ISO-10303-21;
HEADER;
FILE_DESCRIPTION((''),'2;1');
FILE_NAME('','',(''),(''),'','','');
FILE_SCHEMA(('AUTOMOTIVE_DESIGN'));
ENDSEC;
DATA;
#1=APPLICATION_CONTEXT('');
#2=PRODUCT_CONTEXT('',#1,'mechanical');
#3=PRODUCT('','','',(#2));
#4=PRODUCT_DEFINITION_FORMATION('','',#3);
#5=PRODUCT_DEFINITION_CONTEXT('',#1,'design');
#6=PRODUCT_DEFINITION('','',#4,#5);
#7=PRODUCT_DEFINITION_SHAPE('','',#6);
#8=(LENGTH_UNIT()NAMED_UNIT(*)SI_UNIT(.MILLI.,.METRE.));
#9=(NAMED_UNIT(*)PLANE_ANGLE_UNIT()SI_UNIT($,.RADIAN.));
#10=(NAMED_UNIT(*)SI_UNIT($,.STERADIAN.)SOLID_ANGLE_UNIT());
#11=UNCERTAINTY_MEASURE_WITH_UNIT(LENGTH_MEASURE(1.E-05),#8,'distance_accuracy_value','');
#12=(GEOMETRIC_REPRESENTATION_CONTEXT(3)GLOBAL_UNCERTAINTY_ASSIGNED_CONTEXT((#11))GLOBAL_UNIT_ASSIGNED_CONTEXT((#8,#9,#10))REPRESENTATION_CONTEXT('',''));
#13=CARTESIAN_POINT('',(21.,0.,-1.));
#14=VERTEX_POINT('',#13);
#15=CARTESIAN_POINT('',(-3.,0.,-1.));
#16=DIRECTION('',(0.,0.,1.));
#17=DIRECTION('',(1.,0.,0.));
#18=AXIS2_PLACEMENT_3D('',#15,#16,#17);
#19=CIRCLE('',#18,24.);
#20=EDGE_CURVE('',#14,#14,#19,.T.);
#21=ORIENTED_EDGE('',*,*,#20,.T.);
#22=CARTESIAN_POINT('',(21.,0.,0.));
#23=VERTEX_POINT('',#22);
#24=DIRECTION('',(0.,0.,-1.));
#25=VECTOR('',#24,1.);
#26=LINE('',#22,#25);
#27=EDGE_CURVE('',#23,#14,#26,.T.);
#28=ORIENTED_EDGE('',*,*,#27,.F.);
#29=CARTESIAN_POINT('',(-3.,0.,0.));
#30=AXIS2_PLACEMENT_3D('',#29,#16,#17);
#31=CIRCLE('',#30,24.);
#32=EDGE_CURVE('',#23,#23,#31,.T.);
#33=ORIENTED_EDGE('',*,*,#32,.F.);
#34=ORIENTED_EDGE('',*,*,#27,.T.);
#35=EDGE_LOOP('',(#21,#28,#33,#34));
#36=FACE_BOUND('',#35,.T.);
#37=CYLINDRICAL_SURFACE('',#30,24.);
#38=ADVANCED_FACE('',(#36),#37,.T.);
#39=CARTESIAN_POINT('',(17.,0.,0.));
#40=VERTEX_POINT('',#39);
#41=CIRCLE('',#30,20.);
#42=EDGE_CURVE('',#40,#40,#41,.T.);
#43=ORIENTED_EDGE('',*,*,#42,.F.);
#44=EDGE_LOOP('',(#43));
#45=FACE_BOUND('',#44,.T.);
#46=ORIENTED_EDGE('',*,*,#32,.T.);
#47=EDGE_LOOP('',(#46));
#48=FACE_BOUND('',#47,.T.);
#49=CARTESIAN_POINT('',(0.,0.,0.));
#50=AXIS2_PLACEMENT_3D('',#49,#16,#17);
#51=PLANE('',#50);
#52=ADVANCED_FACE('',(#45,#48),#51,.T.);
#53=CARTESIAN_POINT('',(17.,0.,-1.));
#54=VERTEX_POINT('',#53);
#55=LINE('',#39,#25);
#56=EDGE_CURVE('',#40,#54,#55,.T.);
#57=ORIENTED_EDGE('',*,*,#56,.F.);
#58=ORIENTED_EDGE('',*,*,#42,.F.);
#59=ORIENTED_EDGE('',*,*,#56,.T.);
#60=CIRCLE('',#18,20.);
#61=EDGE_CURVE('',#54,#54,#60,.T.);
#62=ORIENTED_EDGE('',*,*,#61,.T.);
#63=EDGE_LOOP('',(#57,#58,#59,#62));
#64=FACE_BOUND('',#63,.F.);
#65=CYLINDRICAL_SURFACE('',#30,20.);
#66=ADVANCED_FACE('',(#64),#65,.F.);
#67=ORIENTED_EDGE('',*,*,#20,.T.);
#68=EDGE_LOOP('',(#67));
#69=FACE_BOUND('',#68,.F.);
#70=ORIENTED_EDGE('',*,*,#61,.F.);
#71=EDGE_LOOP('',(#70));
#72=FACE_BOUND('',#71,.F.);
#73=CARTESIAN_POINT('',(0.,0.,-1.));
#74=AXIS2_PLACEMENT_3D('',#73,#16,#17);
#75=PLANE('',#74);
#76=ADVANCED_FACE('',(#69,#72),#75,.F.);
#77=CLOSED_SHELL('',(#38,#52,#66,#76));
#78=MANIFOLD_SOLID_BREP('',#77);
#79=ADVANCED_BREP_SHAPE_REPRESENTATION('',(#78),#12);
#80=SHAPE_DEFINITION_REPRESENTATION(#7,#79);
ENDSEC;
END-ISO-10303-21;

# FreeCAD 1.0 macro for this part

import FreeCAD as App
import Part
import Sketcher
from FreeCAD import Vector

doc = App.newDocument("Part")
body = doc.addObject("PartDesign::Body", "Body")

sketch1 = body.newObject("Sketcher::SketchObject", "Sketch")
sketch1.AttachmentSupport = (doc.getObject("XY_Plane"), [""])
sketch1.MapMode = "FlatFace"
sketch1.addGeometry(Part.Circle(Vector(-3, 0, 0), Vector(0, 0, 1), 24), False)
sketch1.addGeometry(Part.Circle(Vector(-3, 0, 0), Vector(0, 0, 1), 20), False)
sketch1.addConstraint(Sketcher.Constraint("Coincident", 1, 3, 0, 3))
sketch1.addConstraint(Sketcher.Constraint("PointOnObject", 0, 3, -1))
sketch1.addConstraint(Sketcher.Constraint("Diameter", 0, 48.0))
sketch1.addConstraint(Sketcher.Constraint("Diameter", 1, 40.0))
sketch1.addConstraint(Sketcher.Constraint("DistanceX", 0, 3, -1, 1, 3.0))
pad1 = body.newObject("PartDesign::Pad", "Pad")
pad1.Profile = sketch1
pad1.Length = 1
pad1.Reversed = True

doc.recompute()
